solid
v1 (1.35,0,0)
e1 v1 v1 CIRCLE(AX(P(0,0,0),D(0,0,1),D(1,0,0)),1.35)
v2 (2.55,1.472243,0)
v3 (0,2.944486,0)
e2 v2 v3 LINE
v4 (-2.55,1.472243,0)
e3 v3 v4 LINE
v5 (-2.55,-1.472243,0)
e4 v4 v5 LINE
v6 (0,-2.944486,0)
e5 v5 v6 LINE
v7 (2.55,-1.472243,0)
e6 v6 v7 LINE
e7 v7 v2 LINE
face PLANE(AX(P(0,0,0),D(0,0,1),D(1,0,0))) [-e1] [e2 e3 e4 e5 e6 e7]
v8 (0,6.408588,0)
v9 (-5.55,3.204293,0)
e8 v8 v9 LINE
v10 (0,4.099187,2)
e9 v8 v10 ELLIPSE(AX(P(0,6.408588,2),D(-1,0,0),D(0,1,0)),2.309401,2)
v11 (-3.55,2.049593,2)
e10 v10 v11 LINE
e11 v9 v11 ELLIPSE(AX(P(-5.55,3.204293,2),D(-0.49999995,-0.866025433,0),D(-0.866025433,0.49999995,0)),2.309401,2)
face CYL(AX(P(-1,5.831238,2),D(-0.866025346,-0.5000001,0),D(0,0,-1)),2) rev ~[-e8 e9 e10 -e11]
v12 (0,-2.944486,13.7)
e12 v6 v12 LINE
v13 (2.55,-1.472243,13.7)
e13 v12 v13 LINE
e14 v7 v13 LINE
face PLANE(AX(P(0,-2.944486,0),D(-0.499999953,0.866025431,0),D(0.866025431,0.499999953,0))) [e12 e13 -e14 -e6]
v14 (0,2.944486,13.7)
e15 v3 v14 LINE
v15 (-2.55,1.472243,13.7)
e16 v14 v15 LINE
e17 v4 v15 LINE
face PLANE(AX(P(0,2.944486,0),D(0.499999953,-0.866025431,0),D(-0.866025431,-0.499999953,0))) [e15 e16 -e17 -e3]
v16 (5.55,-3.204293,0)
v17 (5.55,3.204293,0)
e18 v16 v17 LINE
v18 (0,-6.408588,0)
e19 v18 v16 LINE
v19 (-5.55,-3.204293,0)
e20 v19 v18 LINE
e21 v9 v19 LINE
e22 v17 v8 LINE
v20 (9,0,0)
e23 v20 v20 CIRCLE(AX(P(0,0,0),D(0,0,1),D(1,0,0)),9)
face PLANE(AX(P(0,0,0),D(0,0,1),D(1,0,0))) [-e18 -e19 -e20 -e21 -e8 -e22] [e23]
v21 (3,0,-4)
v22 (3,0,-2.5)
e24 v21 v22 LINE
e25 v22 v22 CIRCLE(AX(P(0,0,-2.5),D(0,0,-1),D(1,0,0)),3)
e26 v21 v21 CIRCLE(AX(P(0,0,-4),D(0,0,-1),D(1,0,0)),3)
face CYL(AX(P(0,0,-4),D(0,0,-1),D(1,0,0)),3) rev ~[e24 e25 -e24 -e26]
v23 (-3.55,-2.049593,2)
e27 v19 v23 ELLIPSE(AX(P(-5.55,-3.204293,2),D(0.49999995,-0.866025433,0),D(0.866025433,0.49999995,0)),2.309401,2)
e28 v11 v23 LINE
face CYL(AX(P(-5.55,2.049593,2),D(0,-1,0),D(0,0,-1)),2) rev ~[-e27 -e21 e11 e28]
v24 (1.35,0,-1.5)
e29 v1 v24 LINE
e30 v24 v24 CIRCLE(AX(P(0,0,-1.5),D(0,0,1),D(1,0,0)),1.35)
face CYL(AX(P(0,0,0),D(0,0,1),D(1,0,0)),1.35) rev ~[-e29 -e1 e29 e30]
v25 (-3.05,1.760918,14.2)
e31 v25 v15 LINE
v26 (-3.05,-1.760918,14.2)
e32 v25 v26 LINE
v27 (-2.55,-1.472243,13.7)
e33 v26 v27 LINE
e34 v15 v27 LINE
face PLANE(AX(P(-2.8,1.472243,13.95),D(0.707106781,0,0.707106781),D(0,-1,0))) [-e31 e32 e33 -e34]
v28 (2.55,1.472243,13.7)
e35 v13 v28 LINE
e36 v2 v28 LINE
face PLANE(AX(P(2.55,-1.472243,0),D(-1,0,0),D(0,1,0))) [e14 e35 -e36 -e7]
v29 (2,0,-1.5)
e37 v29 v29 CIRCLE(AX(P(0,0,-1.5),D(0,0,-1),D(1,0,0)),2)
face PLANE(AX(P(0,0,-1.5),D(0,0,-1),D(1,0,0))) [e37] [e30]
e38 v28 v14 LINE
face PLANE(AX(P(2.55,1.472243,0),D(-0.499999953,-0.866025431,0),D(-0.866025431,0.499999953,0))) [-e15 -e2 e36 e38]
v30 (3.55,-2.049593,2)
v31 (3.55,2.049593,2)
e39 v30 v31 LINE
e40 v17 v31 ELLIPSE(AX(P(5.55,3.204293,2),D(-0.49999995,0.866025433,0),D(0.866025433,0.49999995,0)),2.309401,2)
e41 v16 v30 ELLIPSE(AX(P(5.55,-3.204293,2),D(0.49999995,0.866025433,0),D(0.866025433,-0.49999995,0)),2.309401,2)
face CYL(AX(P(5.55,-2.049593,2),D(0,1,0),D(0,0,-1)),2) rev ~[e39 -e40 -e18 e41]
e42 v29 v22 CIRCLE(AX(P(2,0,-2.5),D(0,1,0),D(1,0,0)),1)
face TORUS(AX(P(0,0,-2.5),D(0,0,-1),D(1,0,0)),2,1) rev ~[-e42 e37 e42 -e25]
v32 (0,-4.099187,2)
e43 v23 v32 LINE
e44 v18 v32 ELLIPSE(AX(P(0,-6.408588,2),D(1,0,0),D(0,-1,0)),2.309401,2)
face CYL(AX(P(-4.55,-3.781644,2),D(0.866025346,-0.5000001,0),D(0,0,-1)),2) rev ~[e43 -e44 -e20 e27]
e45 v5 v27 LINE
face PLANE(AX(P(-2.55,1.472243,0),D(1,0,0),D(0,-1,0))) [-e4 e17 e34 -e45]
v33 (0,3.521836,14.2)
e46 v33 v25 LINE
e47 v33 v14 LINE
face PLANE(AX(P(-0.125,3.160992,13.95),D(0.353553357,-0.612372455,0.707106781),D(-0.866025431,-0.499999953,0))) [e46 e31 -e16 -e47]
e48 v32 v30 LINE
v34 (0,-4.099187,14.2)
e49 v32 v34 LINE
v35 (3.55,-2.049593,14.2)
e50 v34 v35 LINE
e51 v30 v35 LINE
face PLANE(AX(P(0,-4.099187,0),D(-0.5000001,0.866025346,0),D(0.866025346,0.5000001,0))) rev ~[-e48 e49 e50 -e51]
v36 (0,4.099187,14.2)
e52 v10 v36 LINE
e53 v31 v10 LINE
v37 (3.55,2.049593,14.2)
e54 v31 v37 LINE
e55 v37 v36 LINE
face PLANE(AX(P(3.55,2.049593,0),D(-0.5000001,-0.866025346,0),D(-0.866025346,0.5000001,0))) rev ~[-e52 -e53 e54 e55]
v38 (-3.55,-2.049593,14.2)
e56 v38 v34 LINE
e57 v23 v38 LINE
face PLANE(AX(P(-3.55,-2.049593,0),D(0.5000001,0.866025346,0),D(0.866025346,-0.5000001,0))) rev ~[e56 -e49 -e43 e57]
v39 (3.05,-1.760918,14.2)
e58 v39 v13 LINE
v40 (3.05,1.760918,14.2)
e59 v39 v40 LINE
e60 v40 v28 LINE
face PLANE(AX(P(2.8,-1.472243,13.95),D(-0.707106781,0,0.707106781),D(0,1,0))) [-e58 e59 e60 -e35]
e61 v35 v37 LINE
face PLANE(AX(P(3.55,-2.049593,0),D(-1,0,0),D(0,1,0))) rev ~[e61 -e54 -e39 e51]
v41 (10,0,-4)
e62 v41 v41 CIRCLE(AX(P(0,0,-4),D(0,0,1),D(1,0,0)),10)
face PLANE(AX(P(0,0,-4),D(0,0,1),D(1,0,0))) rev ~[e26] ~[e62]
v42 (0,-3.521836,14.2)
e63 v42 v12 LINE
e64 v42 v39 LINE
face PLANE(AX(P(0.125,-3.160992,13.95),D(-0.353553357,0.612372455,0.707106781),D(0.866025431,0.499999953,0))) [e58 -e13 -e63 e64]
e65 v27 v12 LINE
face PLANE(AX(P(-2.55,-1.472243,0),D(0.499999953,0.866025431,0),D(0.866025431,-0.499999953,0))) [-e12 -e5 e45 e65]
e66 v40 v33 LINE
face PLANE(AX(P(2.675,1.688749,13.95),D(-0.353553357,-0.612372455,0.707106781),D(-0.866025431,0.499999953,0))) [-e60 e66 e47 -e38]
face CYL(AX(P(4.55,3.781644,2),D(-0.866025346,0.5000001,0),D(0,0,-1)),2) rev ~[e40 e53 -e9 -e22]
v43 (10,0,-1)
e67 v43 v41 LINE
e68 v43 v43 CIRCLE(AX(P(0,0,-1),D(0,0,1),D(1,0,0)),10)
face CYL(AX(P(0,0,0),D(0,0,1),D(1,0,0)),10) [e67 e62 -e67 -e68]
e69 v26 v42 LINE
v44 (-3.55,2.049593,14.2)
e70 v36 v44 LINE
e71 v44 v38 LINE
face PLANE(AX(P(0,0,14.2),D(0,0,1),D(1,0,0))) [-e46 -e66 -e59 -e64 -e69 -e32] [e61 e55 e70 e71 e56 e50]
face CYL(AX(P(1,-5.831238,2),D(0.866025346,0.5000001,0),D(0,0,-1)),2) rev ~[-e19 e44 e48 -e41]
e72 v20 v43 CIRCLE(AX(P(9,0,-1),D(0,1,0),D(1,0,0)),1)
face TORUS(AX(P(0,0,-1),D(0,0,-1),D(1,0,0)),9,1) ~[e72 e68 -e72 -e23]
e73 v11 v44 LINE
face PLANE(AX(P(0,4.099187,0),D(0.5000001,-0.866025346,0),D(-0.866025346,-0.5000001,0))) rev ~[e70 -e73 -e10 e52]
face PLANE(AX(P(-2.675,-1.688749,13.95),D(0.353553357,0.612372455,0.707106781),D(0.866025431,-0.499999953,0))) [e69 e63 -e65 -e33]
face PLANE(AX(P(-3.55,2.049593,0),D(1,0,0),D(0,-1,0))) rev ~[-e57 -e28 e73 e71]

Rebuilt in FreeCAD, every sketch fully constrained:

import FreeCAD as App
import Part
import Sketcher

V = App.Vector
Q = App.Units.Quantity


def edges_at(feature, points):
    """Names of the edges that pass closest to the given points."""
    edges = feature.Shape.Edges
    near = lambda p: min(range(len(edges)), key=lambda i: edges[i].distToShape(Part.Vertex(*p))[0])
    return sorted({f"Edge{near(p) + 1}" for p in points})

doc = App.newDocument("Part")
body = doc.addObject("PartDesign::Body", "Body")

sketch1 = doc.addObject("Sketcher::SketchObject", "Sketch")
body.addObject(sketch1)
sketch1.AttachmentSupport = (doc.XY_Plane, [""])
sketch1.MapMode = "FlatFace"
sketch1.addGeometry(Part.Circle(V(0, 0, 0), V(0, 0, 1), 10), False)
sketch1.addConstraint(Sketcher.Constraint("Coincident", 0, 3, -1, 1))
sketch1.addConstraint(Sketcher.Constraint("Diameter", 0, 20.0))
pad1 = doc.addObject("PartDesign::Pad", "Pad")
body.addObject(pad1)
pad1.Profile = sketch1
pad1.Length = 4
pad1.Reversed = True

sketch2 = doc.addObject("Sketcher::SketchObject", "Sketch001")
body.addObject(sketch2)
sketch2.AttachmentSupport = (doc.XY_Plane, [""])
sketch2.MapMode = "FlatFace"
sketch2.addGeometry(Part.LineSegment(V(3.55, -2.049593, 0), V(3.55, 2.049593, 0)), False)
sketch2.addGeometry(Part.LineSegment(V(3.55, 2.049593, 0), V(0, 4.099187, 0)), False)
sketch2.addGeometry(Part.LineSegment(V(0, 4.099187, 0), V(-3.55, 2.049593, 0)), False)
sketch2.addGeometry(Part.LineSegment(V(-3.55, 2.049593, 0), V(-3.55, -2.049593, 0)), False)
sketch2.addGeometry(Part.LineSegment(V(-3.55, -2.049593, 0), V(0, -4.099187, 0)), False)
sketch2.addGeometry(Part.LineSegment(V(0, -4.099187, 0), V(3.55, -2.049593, 0)), False)
sketch2.addGeometry(Part.LineSegment(V(2.55, 1.472243, 0), V(2.55, -1.472243, 0)), False)
sketch2.addGeometry(Part.LineSegment(V(2.55, -1.472243, 0), V(0, -2.944486, 0)), False)
sketch2.addGeometry(Part.LineSegment(V(0, -2.944486, 0), V(-2.55, -1.472243, 0)), False)
sketch2.addGeometry(Part.LineSegment(V(-2.55, -1.472243, 0), V(-2.55, 1.472243, 0)), False)
sketch2.addGeometry(Part.LineSegment(V(-2.55, 1.472243, 0), V(0, 2.944486, 0)), False)
sketch2.addGeometry(Part.LineSegment(V(0, 2.944486, 0), V(2.55, 1.472243, 0)), False)
sketch2.addConstraint(Sketcher.Constraint("Coincident", 0, 2, 1, 1))
sketch2.addConstraint(Sketcher.Constraint("Coincident", 1, 2, 2, 1))
sketch2.addConstraint(Sketcher.Constraint("Coincident", 2, 2, 3, 1))
sketch2.addConstraint(Sketcher.Constraint("Coincident", 3, 2, 4, 1))
sketch2.addConstraint(Sketcher.Constraint("Coincident", 4, 2, 5, 1))
sketch2.addConstraint(Sketcher.Constraint("Coincident", 5, 2, 0, 1))
sketch2.addConstraint(Sketcher.Constraint("Coincident", 6, 2, 7, 1))
sketch2.addConstraint(Sketcher.Constraint("Coincident", 7, 2, 8, 1))
sketch2.addConstraint(Sketcher.Constraint("Coincident", 8, 2, 9, 1))
sketch2.addConstraint(Sketcher.Constraint("Coincident", 9, 2, 10, 1))
sketch2.addConstraint(Sketcher.Constraint("Coincident", 10, 2, 11, 1))
sketch2.addConstraint(Sketcher.Constraint("Coincident", 11, 2, 6, 1))
sketch2.addConstraint(Sketcher.Constraint("Vertical", 0))
sketch2.addConstraint(Sketcher.Constraint("Vertical", 3))
sketch2.addConstraint(Sketcher.Constraint("Vertical", 6))
sketch2.addConstraint(Sketcher.Constraint("Vertical", 9))
sketch2.addConstraint(Sketcher.Constraint("Symmetric", 0, 2, 3, 2, -1, 1))
sketch2.addConstraint(Sketcher.Constraint("Symmetric", 1, 2, 4, 2, -1, 1))
sketch2.addConstraint(Sketcher.Constraint("Symmetric", 6, 2, 9, 2, -1, 1))
sketch2.addConstraint(Sketcher.Constraint("Symmetric", 7, 2, 10, 2, -1, 1))
sketch2.addConstraint(Sketcher.Constraint("PointOnObject", 1, 2, -2))
sketch2.addConstraint(Sketcher.Constraint("PointOnObject", 7, 2, -2))
sketch2.addConstraint(Sketcher.Constraint("Parallel", 2, 5))
sketch2.addConstraint(Sketcher.Constraint("Parallel", 5, 7))
sketch2.addConstraint(Sketcher.Constraint("Parallel", 4, 8))
sketch2.addConstraint(Sketcher.Constraint("Parallel", 8, 11))
sketch2.addConstraint(Sketcher.Constraint("Horizontal", 0, 2, 2, 2))
sketch2.addConstraint(Sketcher.Constraint("Angle", 1, Q("149.999993 deg")))
sketch2.addConstraint(Sketcher.Constraint("DistanceX", 6, 2, 5, 2, 1.0))
sketch2.addConstraint(Sketcher.Constraint("DistanceX", 2, 2, 0, 2, 7.1))
sketch2.addConstraint(Sketcher.Constraint("DistanceY", 4, 2, 7, 2, 1.154701))
sketch2.addConstraint(Sketcher.Constraint("DistanceY", 0, 1, 0, 2, 4.099186))
pad2 = doc.addObject("PartDesign::Pad", "Pad001")
body.addObject(pad2)
pad2.Profile = sketch2
pad2.Length = 14.2
doc.recompute()

fillet = doc.addObject("PartDesign::Fillet", "Fillet")
body.addObject(fillet)
fillet.Base = (pad2, edges_at(pad2, [
    (-1.775, -3.074, 0),
    (1.775, -3.074, 0),
    (3.55, 0, 0),
    (1.775, 3.074, 0),
    (-1.775, 3.074, 0),
    (-3.55, 0, 0),
]))
fillet.Radius = 2
doc.recompute()

fillet2 = doc.addObject("PartDesign::Fillet", "Fillet001")
body.addObject(fillet2)
fillet2.Base = (fillet, edges_at(fillet, [(-10, 0, 0)]))
fillet2.Radius = 1
doc.recompute()

chamfer = doc.addObject("PartDesign::Chamfer", "Chamfer")
body.addObject(chamfer)
chamfer.Base = (fillet2, edges_at(fillet2, [
    (1.275, -2.208, 14.2),
    (2.55, 0, 14.2),
    (1.275, 2.208, 14.2),
    (-1.275, 2.208, 14.2),
    (-2.55, 0, 14.2),
    (-1.275, -2.208, 14.2),
]))
chamfer.Size = 0.5

sketch3 = doc.addObject("Sketcher::SketchObject", "Sketch002")
body.addObject(sketch3)
sketch3.AttachmentSupport = (doc.XY_Plane, [""])
sketch3.MapMode = "FlatFace"
sketch3.AttachmentOffset = App.Placement(V(0, 0, -4), App.Rotation())
sketch3.addGeometry(Part.Circle(V(0, 0, 0), V(0, 0, 1), 3), False)
sketch3.addConstraint(Sketcher.Constraint("Coincident", 0, 3, -1, 1))
sketch3.addConstraint(Sketcher.Constraint("Diameter", 0, 6.0))
pocket1 = doc.addObject("PartDesign::Pocket", "Pocket")
body.addObject(pocket1)
pocket1.Profile = sketch3
pocket1.Length = 2.5
pocket1.Reversed = True

sketch4 = doc.addObject("Sketcher::SketchObject", "Sketch003")
body.addObject(sketch4)
sketch4.AttachmentSupport = (doc.XY_Plane, [""])
sketch4.MapMode = "FlatFace"
sketch4.addGeometry(Part.Circle(V(0, 0, 0), V(0, 0, 1), 1.35), False)
sketch4.addConstraint(Sketcher.Constraint("Coincident", 0, 3, -1, 1))
sketch4.addConstraint(Sketcher.Constraint("Diameter", 0, 2.7))
pocket2 = doc.addObject("PartDesign::Pocket", "Pocket001")
body.addObject(pocket2)
pocket2.Profile = sketch4
pocket2.Type = "ThroughAll"
doc.recompute()

fillet3 = doc.addObject("PartDesign::Fillet", "Fillet002")
body.addObject(fillet3)
fillet3.Base = (pocket2, edges_at(pocket2, [(-3, 0, -1.5)]))
fillet3.Radius = 1

doc.recompute()
